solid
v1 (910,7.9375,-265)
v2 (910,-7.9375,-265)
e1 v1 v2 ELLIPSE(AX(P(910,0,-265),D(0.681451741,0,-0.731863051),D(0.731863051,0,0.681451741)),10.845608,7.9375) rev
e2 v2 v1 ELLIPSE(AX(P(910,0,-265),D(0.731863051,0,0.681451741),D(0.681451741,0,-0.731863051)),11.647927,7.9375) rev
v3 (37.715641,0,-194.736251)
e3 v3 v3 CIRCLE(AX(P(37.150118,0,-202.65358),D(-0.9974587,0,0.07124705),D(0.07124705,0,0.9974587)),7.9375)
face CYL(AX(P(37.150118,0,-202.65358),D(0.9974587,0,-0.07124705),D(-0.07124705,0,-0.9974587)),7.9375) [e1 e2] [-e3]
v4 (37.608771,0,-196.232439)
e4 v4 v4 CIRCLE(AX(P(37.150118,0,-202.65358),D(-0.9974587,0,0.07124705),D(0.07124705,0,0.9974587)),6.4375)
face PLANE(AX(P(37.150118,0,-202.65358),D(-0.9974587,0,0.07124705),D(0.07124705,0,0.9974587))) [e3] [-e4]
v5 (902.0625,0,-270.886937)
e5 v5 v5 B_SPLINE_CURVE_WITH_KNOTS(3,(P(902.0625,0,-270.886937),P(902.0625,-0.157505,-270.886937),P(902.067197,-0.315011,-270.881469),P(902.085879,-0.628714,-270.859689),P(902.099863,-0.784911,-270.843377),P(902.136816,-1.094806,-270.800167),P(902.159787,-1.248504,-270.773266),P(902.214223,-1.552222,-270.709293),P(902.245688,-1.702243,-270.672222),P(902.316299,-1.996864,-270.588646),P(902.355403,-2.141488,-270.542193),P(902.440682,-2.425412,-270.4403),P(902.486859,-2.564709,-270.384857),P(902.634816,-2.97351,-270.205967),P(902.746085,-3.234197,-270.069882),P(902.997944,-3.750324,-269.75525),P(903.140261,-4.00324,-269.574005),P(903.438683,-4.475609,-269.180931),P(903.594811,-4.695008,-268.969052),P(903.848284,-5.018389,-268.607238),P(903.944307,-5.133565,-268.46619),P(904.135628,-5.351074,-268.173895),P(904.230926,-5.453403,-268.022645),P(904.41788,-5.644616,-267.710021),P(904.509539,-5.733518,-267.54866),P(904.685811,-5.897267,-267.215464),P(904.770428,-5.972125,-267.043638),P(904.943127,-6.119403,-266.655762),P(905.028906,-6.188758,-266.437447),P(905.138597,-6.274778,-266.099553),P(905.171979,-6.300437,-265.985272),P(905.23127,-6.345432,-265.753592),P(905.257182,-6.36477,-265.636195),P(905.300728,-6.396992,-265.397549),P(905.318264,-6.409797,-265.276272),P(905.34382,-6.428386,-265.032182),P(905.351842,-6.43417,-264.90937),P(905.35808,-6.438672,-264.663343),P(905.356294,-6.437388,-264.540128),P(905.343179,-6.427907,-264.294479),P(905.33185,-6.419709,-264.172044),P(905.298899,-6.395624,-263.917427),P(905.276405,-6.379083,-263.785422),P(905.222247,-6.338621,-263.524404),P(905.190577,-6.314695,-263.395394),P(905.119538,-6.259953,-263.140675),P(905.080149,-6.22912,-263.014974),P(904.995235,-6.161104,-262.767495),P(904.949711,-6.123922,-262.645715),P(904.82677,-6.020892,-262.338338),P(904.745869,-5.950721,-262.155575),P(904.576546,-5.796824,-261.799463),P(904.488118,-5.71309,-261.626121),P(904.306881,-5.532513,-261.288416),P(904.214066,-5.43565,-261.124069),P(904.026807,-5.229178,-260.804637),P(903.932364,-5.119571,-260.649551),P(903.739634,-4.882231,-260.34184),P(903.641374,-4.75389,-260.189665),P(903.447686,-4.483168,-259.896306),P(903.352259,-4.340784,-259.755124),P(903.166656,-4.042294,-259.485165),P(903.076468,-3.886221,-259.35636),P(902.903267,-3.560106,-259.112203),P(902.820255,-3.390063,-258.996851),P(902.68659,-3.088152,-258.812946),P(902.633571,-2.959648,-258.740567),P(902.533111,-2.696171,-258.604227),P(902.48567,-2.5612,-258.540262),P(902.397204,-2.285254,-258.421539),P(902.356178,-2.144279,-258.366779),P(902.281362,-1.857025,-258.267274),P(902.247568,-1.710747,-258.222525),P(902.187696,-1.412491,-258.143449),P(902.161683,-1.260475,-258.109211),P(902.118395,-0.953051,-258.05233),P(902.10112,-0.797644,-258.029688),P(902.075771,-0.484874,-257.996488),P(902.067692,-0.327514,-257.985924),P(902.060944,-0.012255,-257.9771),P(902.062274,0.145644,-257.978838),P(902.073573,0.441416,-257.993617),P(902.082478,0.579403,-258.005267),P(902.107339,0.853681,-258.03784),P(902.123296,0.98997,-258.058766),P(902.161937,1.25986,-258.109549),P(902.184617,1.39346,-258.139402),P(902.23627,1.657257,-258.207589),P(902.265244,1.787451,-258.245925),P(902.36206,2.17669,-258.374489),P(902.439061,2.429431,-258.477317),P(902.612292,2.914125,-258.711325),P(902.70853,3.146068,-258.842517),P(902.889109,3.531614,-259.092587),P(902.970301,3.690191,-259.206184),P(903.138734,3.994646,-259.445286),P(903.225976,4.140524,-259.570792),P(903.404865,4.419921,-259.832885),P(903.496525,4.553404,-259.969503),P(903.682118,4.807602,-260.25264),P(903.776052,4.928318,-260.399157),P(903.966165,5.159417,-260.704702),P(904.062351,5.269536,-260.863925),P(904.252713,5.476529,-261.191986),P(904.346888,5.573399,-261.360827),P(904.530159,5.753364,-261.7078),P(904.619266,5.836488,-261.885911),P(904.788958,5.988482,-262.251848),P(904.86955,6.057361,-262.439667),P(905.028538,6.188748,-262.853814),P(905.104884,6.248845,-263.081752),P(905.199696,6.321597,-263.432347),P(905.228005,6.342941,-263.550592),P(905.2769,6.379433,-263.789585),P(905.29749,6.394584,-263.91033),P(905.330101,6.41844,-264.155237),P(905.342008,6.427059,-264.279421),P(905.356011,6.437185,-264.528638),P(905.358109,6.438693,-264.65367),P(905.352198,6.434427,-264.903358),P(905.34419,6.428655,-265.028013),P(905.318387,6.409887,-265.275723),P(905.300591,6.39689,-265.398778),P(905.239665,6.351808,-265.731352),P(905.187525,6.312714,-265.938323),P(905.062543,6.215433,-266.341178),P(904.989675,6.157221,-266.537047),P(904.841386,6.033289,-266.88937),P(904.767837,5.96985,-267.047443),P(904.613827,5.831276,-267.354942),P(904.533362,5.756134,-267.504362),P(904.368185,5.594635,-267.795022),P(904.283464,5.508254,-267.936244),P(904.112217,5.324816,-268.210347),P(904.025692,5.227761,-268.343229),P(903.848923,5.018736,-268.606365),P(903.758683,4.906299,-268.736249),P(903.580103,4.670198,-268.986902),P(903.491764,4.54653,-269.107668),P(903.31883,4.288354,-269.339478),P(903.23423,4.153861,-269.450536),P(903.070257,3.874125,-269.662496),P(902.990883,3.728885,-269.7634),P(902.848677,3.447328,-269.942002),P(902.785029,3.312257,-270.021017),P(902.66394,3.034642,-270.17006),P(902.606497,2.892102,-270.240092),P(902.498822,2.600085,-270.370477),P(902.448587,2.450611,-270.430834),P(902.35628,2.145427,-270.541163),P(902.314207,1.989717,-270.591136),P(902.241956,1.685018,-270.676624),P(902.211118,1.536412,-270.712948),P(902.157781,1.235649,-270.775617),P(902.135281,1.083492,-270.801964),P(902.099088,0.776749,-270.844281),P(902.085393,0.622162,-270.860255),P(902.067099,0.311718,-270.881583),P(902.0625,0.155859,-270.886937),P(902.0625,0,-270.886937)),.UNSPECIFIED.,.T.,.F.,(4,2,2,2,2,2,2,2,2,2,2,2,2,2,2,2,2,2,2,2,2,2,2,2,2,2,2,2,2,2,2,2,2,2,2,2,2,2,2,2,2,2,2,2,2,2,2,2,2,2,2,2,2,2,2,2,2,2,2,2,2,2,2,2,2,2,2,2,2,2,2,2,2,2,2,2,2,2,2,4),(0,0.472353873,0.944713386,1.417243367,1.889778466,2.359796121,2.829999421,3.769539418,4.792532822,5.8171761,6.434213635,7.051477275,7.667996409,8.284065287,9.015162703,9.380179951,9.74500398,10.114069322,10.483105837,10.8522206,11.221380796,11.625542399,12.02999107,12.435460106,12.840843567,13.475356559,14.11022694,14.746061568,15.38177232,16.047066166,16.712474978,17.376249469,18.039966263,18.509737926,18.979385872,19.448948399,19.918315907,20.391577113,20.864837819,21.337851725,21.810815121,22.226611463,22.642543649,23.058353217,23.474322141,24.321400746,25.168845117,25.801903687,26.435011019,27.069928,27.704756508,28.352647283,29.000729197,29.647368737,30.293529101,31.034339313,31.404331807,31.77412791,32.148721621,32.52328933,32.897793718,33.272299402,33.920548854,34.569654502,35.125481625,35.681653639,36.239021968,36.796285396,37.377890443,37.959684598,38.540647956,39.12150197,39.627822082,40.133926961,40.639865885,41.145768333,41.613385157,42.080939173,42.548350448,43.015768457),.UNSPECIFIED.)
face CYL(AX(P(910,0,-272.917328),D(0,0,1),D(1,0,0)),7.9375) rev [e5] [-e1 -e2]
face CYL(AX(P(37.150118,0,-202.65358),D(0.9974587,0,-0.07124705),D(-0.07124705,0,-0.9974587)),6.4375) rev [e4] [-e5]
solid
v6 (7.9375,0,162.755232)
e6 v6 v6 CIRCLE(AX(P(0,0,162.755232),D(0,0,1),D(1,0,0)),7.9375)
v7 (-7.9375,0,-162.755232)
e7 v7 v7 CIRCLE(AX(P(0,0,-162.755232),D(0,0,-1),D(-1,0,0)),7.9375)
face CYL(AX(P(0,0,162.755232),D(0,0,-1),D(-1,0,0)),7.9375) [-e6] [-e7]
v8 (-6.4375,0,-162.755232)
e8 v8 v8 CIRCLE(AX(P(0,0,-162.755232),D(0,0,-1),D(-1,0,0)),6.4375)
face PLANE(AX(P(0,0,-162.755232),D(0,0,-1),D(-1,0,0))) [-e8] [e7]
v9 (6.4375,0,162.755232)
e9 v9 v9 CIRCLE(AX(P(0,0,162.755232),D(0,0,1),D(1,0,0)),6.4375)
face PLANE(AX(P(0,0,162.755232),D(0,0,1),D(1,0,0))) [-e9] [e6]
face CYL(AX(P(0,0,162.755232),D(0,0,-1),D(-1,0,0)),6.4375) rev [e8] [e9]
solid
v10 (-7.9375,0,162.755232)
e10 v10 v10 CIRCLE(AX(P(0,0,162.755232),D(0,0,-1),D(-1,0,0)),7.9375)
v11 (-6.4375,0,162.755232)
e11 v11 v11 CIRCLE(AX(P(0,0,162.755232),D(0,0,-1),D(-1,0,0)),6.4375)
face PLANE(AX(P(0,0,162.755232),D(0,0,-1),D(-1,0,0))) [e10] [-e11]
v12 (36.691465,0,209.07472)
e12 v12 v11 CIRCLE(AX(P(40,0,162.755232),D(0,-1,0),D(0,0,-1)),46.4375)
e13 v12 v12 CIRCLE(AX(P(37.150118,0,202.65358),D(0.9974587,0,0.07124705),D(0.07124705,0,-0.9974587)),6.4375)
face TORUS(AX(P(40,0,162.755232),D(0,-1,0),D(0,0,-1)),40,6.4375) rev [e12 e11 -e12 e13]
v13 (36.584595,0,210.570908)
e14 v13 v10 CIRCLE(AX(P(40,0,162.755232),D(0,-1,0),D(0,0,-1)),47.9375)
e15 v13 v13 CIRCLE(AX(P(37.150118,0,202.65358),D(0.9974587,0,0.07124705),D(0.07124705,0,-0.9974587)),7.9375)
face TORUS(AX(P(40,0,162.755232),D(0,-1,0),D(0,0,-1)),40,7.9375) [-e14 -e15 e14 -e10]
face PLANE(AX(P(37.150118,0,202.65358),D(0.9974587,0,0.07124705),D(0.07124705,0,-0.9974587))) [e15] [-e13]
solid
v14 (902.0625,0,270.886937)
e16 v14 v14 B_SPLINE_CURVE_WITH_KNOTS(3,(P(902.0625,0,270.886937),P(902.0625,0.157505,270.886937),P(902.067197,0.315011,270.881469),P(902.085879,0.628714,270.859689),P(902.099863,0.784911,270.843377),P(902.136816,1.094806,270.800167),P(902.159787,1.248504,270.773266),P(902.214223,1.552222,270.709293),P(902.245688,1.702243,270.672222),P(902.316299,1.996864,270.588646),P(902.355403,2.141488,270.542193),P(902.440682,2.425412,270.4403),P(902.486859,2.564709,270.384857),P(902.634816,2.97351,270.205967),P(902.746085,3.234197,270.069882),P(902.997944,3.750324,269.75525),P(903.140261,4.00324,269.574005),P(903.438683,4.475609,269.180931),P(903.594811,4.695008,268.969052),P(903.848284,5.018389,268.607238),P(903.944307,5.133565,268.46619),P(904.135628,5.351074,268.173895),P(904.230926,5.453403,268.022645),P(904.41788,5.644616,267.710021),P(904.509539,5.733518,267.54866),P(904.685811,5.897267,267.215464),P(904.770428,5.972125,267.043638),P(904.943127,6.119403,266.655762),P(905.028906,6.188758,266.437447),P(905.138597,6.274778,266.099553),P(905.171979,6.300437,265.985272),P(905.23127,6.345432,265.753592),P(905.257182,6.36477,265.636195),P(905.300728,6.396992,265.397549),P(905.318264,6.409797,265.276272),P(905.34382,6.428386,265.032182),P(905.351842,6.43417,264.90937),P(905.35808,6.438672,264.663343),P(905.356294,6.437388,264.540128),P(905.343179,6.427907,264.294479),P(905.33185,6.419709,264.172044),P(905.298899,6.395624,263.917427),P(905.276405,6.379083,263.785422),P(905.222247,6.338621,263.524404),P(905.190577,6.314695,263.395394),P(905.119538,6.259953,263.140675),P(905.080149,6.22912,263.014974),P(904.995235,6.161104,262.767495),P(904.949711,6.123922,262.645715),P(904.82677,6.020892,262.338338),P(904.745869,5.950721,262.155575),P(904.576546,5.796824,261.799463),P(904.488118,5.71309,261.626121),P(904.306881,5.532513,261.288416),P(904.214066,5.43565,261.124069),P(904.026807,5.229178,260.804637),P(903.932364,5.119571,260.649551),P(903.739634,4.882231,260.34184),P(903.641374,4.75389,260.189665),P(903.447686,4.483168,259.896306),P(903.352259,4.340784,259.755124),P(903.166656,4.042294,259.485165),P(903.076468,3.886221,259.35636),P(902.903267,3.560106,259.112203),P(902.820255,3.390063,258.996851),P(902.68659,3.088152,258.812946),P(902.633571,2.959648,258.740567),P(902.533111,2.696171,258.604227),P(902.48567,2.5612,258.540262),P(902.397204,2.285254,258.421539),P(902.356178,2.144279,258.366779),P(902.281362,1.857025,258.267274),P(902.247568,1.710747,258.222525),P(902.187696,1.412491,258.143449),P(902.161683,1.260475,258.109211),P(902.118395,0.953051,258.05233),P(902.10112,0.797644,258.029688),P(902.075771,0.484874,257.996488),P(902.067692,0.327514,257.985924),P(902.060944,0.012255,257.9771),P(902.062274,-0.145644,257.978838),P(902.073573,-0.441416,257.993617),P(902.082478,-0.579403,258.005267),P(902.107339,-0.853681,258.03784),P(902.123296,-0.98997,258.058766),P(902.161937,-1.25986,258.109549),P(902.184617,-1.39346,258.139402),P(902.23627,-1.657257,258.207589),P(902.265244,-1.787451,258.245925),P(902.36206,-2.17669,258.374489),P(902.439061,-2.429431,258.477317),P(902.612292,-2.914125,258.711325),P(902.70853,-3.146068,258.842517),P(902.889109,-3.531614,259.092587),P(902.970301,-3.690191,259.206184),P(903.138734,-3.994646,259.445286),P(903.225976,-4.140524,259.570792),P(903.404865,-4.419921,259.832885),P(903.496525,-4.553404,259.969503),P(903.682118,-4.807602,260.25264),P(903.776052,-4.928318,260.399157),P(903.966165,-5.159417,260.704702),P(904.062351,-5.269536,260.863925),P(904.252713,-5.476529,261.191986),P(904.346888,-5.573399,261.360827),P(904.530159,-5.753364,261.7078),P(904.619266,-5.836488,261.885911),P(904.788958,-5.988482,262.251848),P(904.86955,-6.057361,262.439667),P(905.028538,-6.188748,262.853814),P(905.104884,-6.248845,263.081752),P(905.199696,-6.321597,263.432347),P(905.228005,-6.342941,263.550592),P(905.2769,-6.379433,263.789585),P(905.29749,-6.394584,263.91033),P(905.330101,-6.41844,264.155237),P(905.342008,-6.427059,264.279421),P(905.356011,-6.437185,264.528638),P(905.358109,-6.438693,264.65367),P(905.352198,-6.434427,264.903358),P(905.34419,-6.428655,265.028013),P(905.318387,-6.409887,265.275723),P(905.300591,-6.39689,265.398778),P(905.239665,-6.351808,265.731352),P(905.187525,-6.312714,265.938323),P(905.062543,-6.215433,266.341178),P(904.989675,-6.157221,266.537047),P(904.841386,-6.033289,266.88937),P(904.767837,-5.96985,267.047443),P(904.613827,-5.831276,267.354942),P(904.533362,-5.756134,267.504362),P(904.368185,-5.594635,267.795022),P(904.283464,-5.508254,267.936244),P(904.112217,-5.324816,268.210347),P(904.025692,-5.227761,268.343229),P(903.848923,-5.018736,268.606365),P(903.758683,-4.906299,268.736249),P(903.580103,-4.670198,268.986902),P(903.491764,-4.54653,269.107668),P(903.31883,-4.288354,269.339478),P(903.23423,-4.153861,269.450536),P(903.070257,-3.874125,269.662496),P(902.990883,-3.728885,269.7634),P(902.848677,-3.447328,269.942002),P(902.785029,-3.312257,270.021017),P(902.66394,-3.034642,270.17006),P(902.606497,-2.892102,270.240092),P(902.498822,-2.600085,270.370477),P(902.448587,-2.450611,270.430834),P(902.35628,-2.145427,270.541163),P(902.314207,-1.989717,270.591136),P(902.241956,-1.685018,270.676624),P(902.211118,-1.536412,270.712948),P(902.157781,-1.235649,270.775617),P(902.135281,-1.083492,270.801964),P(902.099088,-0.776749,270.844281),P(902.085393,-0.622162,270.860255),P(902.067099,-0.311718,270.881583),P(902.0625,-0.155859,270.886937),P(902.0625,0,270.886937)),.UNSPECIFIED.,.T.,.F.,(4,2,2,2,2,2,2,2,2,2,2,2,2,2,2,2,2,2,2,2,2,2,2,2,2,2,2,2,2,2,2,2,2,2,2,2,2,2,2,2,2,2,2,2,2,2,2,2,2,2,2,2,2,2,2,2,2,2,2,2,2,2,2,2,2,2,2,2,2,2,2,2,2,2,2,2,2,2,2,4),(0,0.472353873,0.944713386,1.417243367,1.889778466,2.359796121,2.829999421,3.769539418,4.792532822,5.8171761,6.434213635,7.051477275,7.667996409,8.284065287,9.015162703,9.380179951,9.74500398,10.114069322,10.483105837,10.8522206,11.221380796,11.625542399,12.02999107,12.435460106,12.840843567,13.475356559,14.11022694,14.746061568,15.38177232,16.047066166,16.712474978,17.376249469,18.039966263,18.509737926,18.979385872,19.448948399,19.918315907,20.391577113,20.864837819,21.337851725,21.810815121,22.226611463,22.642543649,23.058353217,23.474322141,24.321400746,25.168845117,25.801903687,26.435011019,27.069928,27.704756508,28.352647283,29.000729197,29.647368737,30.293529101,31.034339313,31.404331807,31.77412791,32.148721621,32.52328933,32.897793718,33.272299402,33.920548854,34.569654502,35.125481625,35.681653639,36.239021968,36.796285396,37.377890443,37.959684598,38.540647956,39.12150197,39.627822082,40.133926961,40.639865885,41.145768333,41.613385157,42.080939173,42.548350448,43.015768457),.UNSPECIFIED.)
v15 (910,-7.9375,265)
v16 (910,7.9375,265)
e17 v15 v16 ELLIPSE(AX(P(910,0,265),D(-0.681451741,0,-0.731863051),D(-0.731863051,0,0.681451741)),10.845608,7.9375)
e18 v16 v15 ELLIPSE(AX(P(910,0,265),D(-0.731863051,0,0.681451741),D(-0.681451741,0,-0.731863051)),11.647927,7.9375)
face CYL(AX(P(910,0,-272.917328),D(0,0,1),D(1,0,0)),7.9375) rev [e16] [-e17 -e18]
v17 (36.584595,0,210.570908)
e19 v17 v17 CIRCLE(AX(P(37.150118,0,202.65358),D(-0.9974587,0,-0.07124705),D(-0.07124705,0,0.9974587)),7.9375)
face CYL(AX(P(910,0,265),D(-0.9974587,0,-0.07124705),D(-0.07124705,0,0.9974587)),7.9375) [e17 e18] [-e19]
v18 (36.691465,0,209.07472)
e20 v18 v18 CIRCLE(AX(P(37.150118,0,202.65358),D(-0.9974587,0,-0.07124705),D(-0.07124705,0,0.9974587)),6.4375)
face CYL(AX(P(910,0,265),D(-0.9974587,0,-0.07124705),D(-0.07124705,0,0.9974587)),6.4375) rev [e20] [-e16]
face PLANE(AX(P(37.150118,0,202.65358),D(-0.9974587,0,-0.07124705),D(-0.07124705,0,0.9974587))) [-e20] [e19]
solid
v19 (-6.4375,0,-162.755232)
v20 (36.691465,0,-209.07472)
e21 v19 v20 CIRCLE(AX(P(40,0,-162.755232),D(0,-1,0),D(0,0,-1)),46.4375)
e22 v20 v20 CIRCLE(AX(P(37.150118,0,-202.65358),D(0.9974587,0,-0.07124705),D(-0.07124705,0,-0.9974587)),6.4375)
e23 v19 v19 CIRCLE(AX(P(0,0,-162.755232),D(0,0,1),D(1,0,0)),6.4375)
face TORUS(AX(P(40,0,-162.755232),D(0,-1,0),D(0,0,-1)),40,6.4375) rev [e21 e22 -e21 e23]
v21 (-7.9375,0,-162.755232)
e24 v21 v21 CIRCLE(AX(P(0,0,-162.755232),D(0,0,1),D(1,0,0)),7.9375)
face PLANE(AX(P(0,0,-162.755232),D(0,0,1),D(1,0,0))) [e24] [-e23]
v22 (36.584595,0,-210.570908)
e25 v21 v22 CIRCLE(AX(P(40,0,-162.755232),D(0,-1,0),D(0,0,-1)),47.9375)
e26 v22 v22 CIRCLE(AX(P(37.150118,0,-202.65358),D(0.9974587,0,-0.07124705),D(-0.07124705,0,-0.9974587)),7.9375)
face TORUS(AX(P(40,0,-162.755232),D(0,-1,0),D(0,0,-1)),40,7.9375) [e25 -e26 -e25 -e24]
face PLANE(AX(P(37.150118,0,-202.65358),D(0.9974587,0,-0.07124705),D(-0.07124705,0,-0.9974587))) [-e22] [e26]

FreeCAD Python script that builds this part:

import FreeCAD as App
import Part
import Sketcher
Q = App.Units.Quantity

doc = App.newDocument("Part")
body = doc.addObject("PartDesign::Body", "Body")

# Sketch on an angled plane
sketch1 = body.newObject("Sketcher::SketchObject", "Sketch")
sketch1.Placement = App.Placement(App.Vector(37.150118, 0, -202.65358), App.Rotation(App.Vector(-0.07124705, 0, -0.9974587), App.Vector(0, 1, 0), App.Vector(0.9974587, 0, -0.07124705), "ZXY"))
sketch1.addGeometry([
    Part.Circle(App.Vector(0, 0, 0), App.Vector(0, 0, 1), 7.9375),
    Part.Circle(App.Vector(0, 0, 0), App.Vector(0, 0, 1), 6.4375),
], False)
sketch1.addConstraint([
    Sketcher.Constraint("Coincident", 0, 3, -1, 1),
    Sketcher.Constraint("Coincident", 1, 3, -1, 1),
    Sketcher.Constraint("Diameter", 0, Q("0.625 in")),
    Sketcher.Constraint("Diameter", 1, Q("12.875 mm")),
])
pad1 = body.newObject("PartDesign::Pad", "Pad")
pad1.Profile = sketch1
pad1.Length = 875.073707
body2 = doc.addObject("PartDesign::Body", "Body001")

# Sketch on XY plane
sketch2 = body2.newObject("Sketcher::SketchObject", "Sketch001")
sketch2.AttachmentSupport = (doc.getObject("XY_Plane001"), [""])
sketch2.MapMode = "FlatFace"
sketch2.AttachmentOffset = App.Placement(App.Vector(0, 0, -162.755232), App.Rotation())
sketch2.addGeometry([
    Part.Circle(App.Vector(0, 0, 0), App.Vector(0, 0, 1), 7.9375),
    Part.Circle(App.Vector(0, 0, 0), App.Vector(0, 0, 1), 6.4375),
], False)
sketch2.addGeometry(Part.LineSegment(App.Vector(40, 0, 0), App.Vector(40, -10, 0)), True)  # axis
sketch2.addConstraint([
    Sketcher.Constraint("Vertical", 2),
    Sketcher.Constraint("Coincident", 0, 3, -1, 1),
    Sketcher.Constraint("Coincident", 1, 3, -1, 1),
    Sketcher.Constraint("PointOnObject", 2, 1, -1),
    Sketcher.Constraint("Diameter", 0, Q("0.625 in")),
    Sketcher.Constraint("Diameter", 1, Q("12.875 mm")),
    Sketcher.Constraint("DistanceY", 2, 2, 2, 1, Q("10 mm")),
    Sketcher.Constraint("DistanceX", -1, 1, 2, 1, Q("40 mm")),
])
revolution = body2.newObject("PartDesign::Revolution", "Revolution")
revolution.Profile = sketch2
revolution.ReferenceAxis = (sketch2, ["Axis0"])
revolution.Angle = 85.914383
body3 = doc.addObject("PartDesign::Body", "Body002")

# Sketch on XY plane
sketch3 = body3.newObject("Sketcher::SketchObject", "Sketch002")
sketch3.AttachmentSupport = (doc.getObject("XY_Plane002"), [""])
sketch3.MapMode = "FlatFace"
sketch3.AttachmentOffset = App.Placement(App.Vector(0, 0, -162.755232), App.Rotation())
sketch3.addGeometry([
    Part.Circle(App.Vector(0, 0, 0), App.Vector(0, 0, 1), 7.9375),
    Part.Circle(App.Vector(0, 0, 0), App.Vector(0, 0, 1), 6.4375),
], False)
sketch3.addConstraint([
    Sketcher.Constraint("Coincident", 0, 3, -1, 1),
    Sketcher.Constraint("Coincident", 1, 3, -1, 1),
    Sketcher.Constraint("Diameter", 0, Q("0.625 in")),
    Sketcher.Constraint("Diameter", 1, Q("12.875 mm")),
])
pad2 = body3.newObject("PartDesign::Pad", "Pad001")
pad2.Profile = sketch3
pad2.Length = 325.510464
body4 = doc.addObject("PartDesign::Body", "Body003")

# Sketch on XY plane
sketch4 = body4.newObject("Sketcher::SketchObject", "Sketch003")
sketch4.AttachmentSupport = (doc.getObject("XY_Plane003"), [""])
sketch4.MapMode = "FlatFace"
sketch4.AttachmentOffset = App.Placement(App.Vector(0, 0, 162.755232), App.Rotation())
sketch4.addGeometry([
    Part.Circle(App.Vector(0, 0, 0), App.Vector(0, 0, 1), 7.9375),
    Part.Circle(App.Vector(0, 0, 0), App.Vector(0, 0, 1), 6.4375),
], False)
sketch4.addGeometry(Part.LineSegment(App.Vector(40, 0, 0), App.Vector(40, 10, 0)), True)  # axis
sketch4.addConstraint([
    Sketcher.Constraint("Vertical", 2),
    Sketcher.Constraint("Coincident", 0, 3, -1, 1),
    Sketcher.Constraint("Coincident", 1, 3, -1, 1),
    Sketcher.Constraint("PointOnObject", 2, 1, -1),
    Sketcher.Constraint("Diameter", 0, Q("0.625 in")),
    Sketcher.Constraint("Diameter", 1, Q("12.875 mm")),
    Sketcher.Constraint("DistanceY", 2, 1, 2, 2, Q("10 mm")),
    Sketcher.Constraint("DistanceX", -1, 1, 2, 1, Q("40 mm")),
])
revolution2 = body4.newObject("PartDesign::Revolution", "Revolution001")
revolution2.Profile = sketch4
revolution2.ReferenceAxis = (sketch4, ["Axis0"])
revolution2.Angle = 85.914383
body5 = doc.addObject("PartDesign::Body", "Body004")

# Sketch on an angled plane
sketch5 = body5.newObject("Sketcher::SketchObject", "Sketch004")
sketch5.Placement = App.Placement(App.Vector(37.150118, 0, 202.65358), App.Rotation(App.Vector(0.07124705, 0, -0.9974587), App.Vector(0, 1, 0), App.Vector(0.9974587, 0, 0.07124705), "ZXY"))
sketch5.addGeometry([
    Part.Circle(App.Vector(0, 0, 0), App.Vector(0, 0, 1), 7.9375),
    Part.Circle(App.Vector(0, 0, 0), App.Vector(0, 0, 1), 6.4375),
], False)
sketch5.addConstraint([
    Sketcher.Constraint("Coincident", 0, 3, -1, 1),
    Sketcher.Constraint("Coincident", 1, 3, -1, 1),
    Sketcher.Constraint("Diameter", 0, Q("0.625 in")),
    Sketcher.Constraint("Diameter", 1, Q("12.875 mm")),
])
pad3 = body5.newObject("PartDesign::Pad", "Pad002")
pad3.Profile = sketch5
pad3.Length = 875.073707
body6 = doc.addObject("PartDesign::Body", "Body005")

# Sketch on XY plane
sketch6 = body6.newObject("Sketcher::SketchObject", "Sketch005")
sketch6.AttachmentSupport = (doc.getObject("XY_Plane005"), [""])
sketch6.MapMode = "FlatFace"
sketch6.addGeometry(Part.Circle(App.Vector(910, 0, 0), App.Vector(0, 0, 1), 7.9375), False)
sketch6.addConstraint([
    Sketcher.Constraint("PointOnObject", 0, 3, -1),
    Sketcher.Constraint("Diameter", 0, Q("0.625 in")),
    Sketcher.Constraint("DistanceX", -1, 1, 0, 3, Q("910 mm")),
])
pad4 = body6.newObject("PartDesign::Pad", "Pad003")
pad4.Profile = sketch6
pad4.Type = "TwoLengths"
pad4.Length = 951.61898
pad4.Length2 = 951.61898
doc.recompute()

body7 = doc.addObject("PartDesign::Body", "Body006")
body7.BaseFeature = body6
boolean = body.newObject("PartDesign::Boolean", "Boolean")
boolean.Type = "Cut"
boolean.addObjects([body7])
doc.recompute()

boolean2 = body5.newObject("PartDesign::Boolean", "Boolean001")
boolean2.Type = "Cut"
boolean2.addObjects([body6])

doc.recompute()
